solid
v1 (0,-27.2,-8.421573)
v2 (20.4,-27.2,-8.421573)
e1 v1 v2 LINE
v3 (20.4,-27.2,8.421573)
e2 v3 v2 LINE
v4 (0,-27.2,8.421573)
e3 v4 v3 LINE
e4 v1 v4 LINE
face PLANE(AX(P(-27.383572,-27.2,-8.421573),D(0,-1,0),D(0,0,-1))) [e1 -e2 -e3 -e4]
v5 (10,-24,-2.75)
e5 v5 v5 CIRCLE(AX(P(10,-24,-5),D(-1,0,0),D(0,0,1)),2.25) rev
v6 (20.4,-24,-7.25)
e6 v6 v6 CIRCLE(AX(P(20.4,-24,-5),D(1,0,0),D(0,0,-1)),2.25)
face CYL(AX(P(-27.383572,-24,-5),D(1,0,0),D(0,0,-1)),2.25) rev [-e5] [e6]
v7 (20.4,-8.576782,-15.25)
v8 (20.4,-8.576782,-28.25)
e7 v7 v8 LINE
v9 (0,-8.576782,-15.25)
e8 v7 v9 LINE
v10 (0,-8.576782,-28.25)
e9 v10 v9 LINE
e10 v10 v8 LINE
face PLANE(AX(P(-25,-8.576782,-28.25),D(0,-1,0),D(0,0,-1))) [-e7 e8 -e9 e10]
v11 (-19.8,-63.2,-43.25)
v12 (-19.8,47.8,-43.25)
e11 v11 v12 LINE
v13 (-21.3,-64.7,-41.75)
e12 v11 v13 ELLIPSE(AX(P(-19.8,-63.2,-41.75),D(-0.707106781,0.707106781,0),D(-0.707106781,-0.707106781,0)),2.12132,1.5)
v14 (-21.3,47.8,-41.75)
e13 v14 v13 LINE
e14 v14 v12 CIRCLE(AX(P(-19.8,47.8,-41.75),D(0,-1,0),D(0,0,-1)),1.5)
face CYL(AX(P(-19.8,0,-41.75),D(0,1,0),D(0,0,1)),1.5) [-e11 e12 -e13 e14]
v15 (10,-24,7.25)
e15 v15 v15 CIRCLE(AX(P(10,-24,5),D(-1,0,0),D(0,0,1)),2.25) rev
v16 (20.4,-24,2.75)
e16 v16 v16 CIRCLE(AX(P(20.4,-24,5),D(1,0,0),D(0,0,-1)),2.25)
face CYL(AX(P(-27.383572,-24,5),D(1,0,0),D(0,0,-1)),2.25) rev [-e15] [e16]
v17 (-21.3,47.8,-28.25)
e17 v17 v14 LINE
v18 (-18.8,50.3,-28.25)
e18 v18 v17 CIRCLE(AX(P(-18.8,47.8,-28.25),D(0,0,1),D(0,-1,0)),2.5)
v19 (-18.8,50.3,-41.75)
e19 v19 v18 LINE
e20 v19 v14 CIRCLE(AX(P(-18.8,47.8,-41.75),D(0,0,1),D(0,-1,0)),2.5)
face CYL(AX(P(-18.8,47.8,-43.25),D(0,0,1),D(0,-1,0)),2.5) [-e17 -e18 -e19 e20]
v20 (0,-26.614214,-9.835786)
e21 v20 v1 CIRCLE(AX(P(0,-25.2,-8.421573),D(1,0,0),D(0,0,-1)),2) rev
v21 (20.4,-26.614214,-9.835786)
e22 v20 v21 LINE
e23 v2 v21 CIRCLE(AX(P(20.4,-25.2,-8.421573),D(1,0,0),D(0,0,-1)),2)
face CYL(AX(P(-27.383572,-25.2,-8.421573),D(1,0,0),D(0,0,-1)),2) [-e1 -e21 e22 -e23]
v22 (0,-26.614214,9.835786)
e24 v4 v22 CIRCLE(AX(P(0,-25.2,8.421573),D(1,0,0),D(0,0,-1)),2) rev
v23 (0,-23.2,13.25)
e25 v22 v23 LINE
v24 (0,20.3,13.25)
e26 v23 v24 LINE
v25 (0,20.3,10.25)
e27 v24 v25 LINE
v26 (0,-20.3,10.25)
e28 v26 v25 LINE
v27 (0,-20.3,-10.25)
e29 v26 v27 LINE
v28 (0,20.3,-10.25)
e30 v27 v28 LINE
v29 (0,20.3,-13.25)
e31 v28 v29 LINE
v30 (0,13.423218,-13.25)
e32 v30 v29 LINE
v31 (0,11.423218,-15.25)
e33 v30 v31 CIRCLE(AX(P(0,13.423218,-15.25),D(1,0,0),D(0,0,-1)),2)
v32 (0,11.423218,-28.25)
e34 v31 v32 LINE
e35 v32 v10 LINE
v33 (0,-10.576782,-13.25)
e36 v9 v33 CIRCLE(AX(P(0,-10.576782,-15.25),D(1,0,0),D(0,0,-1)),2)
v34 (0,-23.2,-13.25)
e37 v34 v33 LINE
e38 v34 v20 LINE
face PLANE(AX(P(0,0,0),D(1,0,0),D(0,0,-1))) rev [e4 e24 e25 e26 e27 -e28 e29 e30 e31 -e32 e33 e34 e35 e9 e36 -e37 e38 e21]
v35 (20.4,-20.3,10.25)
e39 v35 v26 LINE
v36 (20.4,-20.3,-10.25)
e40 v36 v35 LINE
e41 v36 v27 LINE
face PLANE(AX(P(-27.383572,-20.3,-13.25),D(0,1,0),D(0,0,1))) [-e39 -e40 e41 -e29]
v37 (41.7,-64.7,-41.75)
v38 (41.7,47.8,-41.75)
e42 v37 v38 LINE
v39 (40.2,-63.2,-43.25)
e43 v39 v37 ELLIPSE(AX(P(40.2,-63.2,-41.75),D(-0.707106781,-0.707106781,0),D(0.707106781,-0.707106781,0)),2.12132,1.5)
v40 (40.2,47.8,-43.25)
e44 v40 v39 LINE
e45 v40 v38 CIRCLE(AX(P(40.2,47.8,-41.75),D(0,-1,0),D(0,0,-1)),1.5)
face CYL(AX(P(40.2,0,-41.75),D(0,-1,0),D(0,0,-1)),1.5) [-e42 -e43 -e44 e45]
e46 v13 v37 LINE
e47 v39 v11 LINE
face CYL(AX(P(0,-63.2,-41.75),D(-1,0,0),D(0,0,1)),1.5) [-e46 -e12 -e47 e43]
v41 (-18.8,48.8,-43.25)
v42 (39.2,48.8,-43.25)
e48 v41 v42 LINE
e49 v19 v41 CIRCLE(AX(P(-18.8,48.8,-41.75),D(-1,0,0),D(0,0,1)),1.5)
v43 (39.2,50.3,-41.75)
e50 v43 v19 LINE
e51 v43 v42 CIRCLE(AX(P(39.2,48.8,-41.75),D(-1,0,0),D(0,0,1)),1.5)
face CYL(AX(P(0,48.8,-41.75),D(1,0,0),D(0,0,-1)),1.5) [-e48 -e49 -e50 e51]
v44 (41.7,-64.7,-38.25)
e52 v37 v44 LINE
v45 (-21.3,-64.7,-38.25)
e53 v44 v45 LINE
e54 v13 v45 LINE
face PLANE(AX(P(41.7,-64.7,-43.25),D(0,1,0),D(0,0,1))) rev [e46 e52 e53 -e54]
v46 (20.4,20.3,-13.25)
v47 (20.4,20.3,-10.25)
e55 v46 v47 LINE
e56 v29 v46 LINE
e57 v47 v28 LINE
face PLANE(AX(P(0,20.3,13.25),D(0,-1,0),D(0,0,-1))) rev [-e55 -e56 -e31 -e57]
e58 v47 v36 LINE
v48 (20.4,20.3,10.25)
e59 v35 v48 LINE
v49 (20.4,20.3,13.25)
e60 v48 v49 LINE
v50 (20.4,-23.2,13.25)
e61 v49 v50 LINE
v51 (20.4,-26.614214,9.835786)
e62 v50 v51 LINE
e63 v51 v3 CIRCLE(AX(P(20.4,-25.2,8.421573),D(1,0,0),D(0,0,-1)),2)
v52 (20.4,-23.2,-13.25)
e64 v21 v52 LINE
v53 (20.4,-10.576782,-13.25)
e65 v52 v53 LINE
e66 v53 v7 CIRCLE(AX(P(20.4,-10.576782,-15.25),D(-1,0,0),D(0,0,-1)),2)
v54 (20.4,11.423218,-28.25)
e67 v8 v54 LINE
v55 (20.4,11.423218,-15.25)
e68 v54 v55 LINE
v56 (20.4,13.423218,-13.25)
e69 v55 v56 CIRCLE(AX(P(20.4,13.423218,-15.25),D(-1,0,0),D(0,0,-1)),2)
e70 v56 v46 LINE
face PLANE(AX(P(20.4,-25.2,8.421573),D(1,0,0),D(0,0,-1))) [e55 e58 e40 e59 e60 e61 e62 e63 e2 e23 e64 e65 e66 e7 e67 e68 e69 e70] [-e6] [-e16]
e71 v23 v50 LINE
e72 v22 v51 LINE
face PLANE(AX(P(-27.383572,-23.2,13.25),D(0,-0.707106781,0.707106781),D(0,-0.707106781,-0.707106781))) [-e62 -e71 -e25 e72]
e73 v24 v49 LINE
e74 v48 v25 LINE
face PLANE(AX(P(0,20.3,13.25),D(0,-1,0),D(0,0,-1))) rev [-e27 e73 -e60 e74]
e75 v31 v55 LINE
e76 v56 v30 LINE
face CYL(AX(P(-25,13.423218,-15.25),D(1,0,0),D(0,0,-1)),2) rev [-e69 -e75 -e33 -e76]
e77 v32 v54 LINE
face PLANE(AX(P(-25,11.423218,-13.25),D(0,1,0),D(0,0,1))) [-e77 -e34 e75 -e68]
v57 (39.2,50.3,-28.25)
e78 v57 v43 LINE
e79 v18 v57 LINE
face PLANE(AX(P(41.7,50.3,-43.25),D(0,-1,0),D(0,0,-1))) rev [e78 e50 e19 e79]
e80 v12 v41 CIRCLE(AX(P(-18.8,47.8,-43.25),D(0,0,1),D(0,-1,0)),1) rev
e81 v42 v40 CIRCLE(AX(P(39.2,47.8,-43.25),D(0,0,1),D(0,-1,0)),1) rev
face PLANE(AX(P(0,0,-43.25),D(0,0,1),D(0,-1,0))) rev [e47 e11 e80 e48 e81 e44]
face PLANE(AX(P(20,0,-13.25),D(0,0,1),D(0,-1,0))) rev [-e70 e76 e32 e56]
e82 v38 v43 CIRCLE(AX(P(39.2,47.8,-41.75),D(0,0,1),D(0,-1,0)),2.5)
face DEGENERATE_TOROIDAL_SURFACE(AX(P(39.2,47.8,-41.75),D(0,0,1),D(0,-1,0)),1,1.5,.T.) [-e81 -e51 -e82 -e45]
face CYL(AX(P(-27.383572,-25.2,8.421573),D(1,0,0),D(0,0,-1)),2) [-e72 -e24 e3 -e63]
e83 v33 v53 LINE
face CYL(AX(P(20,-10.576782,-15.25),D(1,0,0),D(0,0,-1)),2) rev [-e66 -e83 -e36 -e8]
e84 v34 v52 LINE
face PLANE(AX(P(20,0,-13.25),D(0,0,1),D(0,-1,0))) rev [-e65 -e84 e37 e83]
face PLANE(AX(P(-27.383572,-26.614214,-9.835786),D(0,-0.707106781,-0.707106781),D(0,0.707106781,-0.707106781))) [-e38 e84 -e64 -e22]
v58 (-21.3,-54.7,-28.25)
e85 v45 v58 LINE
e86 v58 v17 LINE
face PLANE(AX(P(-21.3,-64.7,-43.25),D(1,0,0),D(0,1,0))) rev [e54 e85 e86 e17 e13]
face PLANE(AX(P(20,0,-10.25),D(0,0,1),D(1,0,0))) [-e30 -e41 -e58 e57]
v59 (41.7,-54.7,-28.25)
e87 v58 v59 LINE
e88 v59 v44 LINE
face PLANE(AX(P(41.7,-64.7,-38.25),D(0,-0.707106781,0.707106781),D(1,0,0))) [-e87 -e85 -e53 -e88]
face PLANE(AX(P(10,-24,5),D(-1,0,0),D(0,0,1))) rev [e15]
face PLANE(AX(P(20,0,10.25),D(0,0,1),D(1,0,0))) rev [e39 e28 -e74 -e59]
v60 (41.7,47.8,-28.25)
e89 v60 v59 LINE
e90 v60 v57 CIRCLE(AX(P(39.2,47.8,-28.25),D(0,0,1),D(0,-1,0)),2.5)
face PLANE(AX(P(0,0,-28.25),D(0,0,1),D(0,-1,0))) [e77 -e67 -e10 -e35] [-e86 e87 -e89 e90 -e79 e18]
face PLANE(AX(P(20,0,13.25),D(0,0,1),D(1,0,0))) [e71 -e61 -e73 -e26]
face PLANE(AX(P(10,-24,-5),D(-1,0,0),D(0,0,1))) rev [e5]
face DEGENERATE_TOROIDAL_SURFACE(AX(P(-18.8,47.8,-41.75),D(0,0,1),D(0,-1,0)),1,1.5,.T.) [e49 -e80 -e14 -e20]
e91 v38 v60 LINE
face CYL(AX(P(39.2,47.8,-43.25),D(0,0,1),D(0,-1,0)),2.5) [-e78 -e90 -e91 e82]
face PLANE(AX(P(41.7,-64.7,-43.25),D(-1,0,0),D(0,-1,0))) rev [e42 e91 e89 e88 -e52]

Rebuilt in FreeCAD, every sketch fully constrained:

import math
import FreeCAD as App
import Part
import Sketcher
from FreeCAD import Vector
Q = App.Units.Quantity


def edges_at(feature, points):
    """Names of the edges that pass closest to the given points."""
    edges = feature.Shape.Edges
    near = lambda p: min(range(len(edges)), key=lambda i: edges[i].distToShape(Part.Vertex(*p))[0])
    return sorted({f"Edge{near(p) + 1}" for p in points})


def add_polygon(sketch, points):
    """Adds a closed chain of lines whose ends are joined by coincident constraints."""
    first, n = sketch.GeometryCount, len(points)
    for a, b in zip(points, points[1:] + points[:1]):
        sketch.addGeometry(Part.LineSegment(App.Vector(*a, 0), App.Vector(*b, 0)), False)
    for i in range(n):
        sketch.addConstraint(Sketcher.Constraint("Coincident", first + i, 2, first + (i + 1) % n, 1))

doc = App.newDocument("Part")
params = doc.addObject("Spreadsheet::Sheet", "Params")
for row, (alias, value) in enumerate([
    ("sketch1_diameter", "4.5 mm"),
    ("sketch1_width", "50 mm"),
    ("sketch1_height", "3 mm"),
    ("sketch1_width2", "40.6 mm"),
    ("sketch1_height2", "26.5 mm"),
    ("pad1_length", "20 mm"),
    ("sketch2_diameter", "4.5 mm"),
    ("pad2_length", "10 mm"),
    ("sketch3_width", "2.5 mm"),
    ("sketch3_height", "26.5 mm"),
    ("chamfer_size", "4 mm"),
    ("chamfer2_size", "4 mm"),
    ("fillet_radius", "2 mm"),
    ("sketch4_width", "20 mm"),
    ("sketch4_height", "15 mm"),
    ("pad3_length", "20 mm"),
    ("fillet2_radius", "2 mm"),
    ("sketch5_radius", "2 mm"),
    ("sketch5_diameter", "4.5 mm"),
    ("sketch5_width", "2.9 mm"),
    ("sketch5_height", "26.5 mm"),
    ("pad4_length", "20 mm"),
    ("sketch6_radius", "2 mm"),
    ("sketch6_width", "2.9 mm"),
    ("sketch6_height", "26.5 mm"),
    ("sketch7_diameter", "4.5 mm"),
    ("pad5_length", "10 mm"),
    ("sketch8_radius", "2 mm"),
    ("sketch8_diameter", "4.5 mm"),
    ("sketch8_width", "20 mm"),
    ("sketch8_height", "3 mm"),
    ("sketch8_height2", "13 mm"),
    ("pad6_length", "0.4 mm"),
    ("sketch9_width", "63 mm"),
    ("sketch9_height", "115 mm"),
    ("pad7_length", "15 mm"),
    ("chamfer3_size", "10 mm"),
    ("fillet3_radius", "2.5 mm"),
    ("fillet4_radius", "1.5 mm"),
], start=1):
    params.set(f"A{row}", alias)
    params.set(f"B{row}", "=" + value)
    params.setAlias(f"B{row}", alias)

body = doc.addObject("PartDesign::Body", "Body")

# Sketch on YZ plane
sketch1 = body.newObject("Sketcher::SketchObject", "Sketch")
sketch1.AttachmentSupport = (doc.getObject("YZ_Plane"), [""])
sketch1.MapMode = "FlatFace"
add_polygon(sketch1, [(-20.3, -10.25), (-20.3, -13.25), (29.7, -13.25), (29.7, 13.25), (-20.3, 13.25), (-20.3, 10.25), (20.3, 10.25), (20.3, -10.25)])  # lines 0-7
sketch1.addGeometry(Part.Circle(Vector(24, 5, 0), Vector(0, 0, 1), 2.25), False)  # 8
sketch1.addGeometry(Part.Circle(Vector(24, -5, 0), Vector(0, 0, 1), 2.25), False)  # 9
sketch1.addConstraint(Sketcher.Constraint("Vertical", 0))
sketch1.addConstraint(Sketcher.Constraint("Horizontal", 1))
sketch1.addConstraint(Sketcher.Constraint("Vertical", 2))
sketch1.addConstraint(Sketcher.Constraint("Horizontal", 3))
sketch1.addConstraint(Sketcher.Constraint("Vertical", 4))
sketch1.addConstraint(Sketcher.Constraint("Horizontal", 5))
sketch1.addConstraint(Sketcher.Constraint("Vertical", 6))
sketch1.addConstraint(Sketcher.Constraint("Horizontal", 7))
sketch1.addConstraint(Sketcher.Constraint("Equal", 8, 9))
sketch1.addConstraint(Sketcher.Constraint("Symmetric", 4, 2, 6, 2, -1, 1))
sketch1.addConstraint(Sketcher.Constraint("Symmetric", 8, 3, 9, 3, -1))
sketch1.addConstraint(Sketcher.Constraint("Symmetric", 0, 2, 3, 2, -1))
sketch1.addConstraint(Sketcher.Constraint("Diameter", 8, Q("4.5 mm")))
sketch1.addConstraint(Sketcher.Constraint("DistanceX", 1, 1, 1, 2, Q("50 mm")))
sketch1.addConstraint(Sketcher.Constraint("DistanceY", 0, 2, 0, 1, Q("3 mm")))
sketch1.addConstraint(Sketcher.Constraint("DistanceX", 5, 1, 5, 2, Q("40.6 mm")))
sketch1.addConstraint(Sketcher.Constraint("DistanceY", 2, 1, 2, 2, Q("26.5 mm")))
sketch1.addConstraint(Sketcher.Constraint("DistanceX", -1, 1, 8, 3, Q("24 mm")))
sketch1.addConstraint(Sketcher.Constraint("DistanceY", -1, 1, 8, 3, Q("5 mm")))
sketch1.setExpression("Constraints[20]", "Params.sketch1_diameter")
sketch1.setExpression("Constraints[21]", "Params.sketch1_width")
sketch1.setExpression("Constraints[22]", "Params.sketch1_height")
sketch1.setExpression("Constraints[23]", "Params.sketch1_width2")
sketch1.setExpression("Constraints[24]", "Params.sketch1_height2")
pad1 = body.newObject("PartDesign::Pad", "Pad")
pad1.Profile = sketch1
pad1.setExpression("Length", "Params.pad1_length")

# Sketch on YZ plane
sketch2 = body.newObject("Sketcher::SketchObject", "Sketch001")
sketch2.AttachmentSupport = (doc.getObject("YZ_Plane"), [""])
sketch2.MapMode = "FlatFace"
sketch2.addGeometry(Part.Circle(Vector(24, -5, 0), Vector(0, 0, 1), 2.25), False)
sketch2.addGeometry(Part.Circle(Vector(24, 5, 0), Vector(0, 0, 1), 2.25), False)
sketch2.addConstraint(Sketcher.Constraint("Equal", 0, 1))
sketch2.addConstraint(Sketcher.Constraint("Symmetric", 0, 3, 1, 3, -1))
sketch2.addConstraint(Sketcher.Constraint("Diameter", 0, Q("4.5 mm")))
sketch2.addConstraint(Sketcher.Constraint("DistanceX", -1, 1, 0, 3, Q("24 mm")))
sketch2.addConstraint(Sketcher.Constraint("DistanceY", 0, 3, -1, 1, Q("5 mm")))
sketch2.setExpression("Constraints[2]", "Params.sketch2_diameter")
pad2 = body.newObject("PartDesign::Pad", "Pad001")
pad2.Profile = sketch2
pad2.setExpression("Length", "Params.pad2_length")

# Sketch on YZ plane
sketch3 = body.newObject("Sketcher::SketchObject", "Sketch002")
sketch3.AttachmentSupport = (doc.getObject("YZ_Plane"), [""])
sketch3.MapMode = "FlatFace"
sketch3.AttachmentOffset = App.Placement(Vector(0, 0, 20), App.Rotation())
add_polygon(sketch3, [(29.7, 13.25), (27.2, 13.25), (27.2, -13.25), (29.7, -13.25)])  # lines 0-3
sketch3.addConstraint(Sketcher.Constraint("Horizontal", 0))
sketch3.addConstraint(Sketcher.Constraint("Vertical", 1))
sketch3.addConstraint(Sketcher.Constraint("Horizontal", 2))
sketch3.addConstraint(Sketcher.Constraint("Vertical", 3))
sketch3.addConstraint(Sketcher.Constraint("DistanceX", 0, 2, 0, 1, Q("2.5 mm")))
sketch3.addConstraint(Sketcher.Constraint("DistanceY", 1, 2, 1, 1, Q("26.5 mm")))
sketch3.addConstraint(Sketcher.Constraint("DistanceX", -1, 1, 0, 2, Q("27.2 mm")))
sketch3.addConstraint(Sketcher.Constraint("DistanceY", -1, 1, 0, 2, Q("13.25 mm")))
sketch3.setExpression("Constraints[8]", "Params.sketch3_width")
sketch3.setExpression("Constraints[9]", "Params.sketch3_height")
pocket1 = body.newObject("PartDesign::Pocket", "Pocket")
pocket1.Profile = sketch3
pocket1.Type = "ThroughAll"
doc.recompute()

chamfer = body.newObject("PartDesign::Chamfer", "Chamfer")
chamfer.Base = (pocket1, edges_at(pocket1, [(10, 27.2, -13.25)]))
chamfer.setExpression("Size", "Params.chamfer_size")
doc.recompute()

chamfer2 = body.newObject("PartDesign::Chamfer", "Chamfer001")
chamfer2.Base = (chamfer, edges_at(chamfer, [(10, 27.2, 13.25)]))
chamfer2.setExpression("Size", "Params.chamfer2_size")
doc.recompute()

fillet = body.newObject("PartDesign::Fillet", "Fillet")
fillet.Base = (chamfer2, edges_at(chamfer2, [(10, 27.2, -9.25), (10, 27.2, 9.25)]))
fillet.setExpression("Radius", "Params.fillet_radius")

# Sketch on YZ plane
sketch4 = body.newObject("Sketcher::SketchObject", "Sketch003")
sketch4.AttachmentSupport = (doc.getObject("YZ_Plane"), [""])
sketch4.MapMode = "FlatFace"
sketch4.AttachmentOffset = App.Placement(Vector(0, 0, 20), App.Rotation())
add_polygon(sketch4, [(11.423218, -13.25), (-8.576782, -13.25), (-8.576782, -28.25), (11.423218, -28.25)])  # lines 0-3
sketch4.addConstraint(Sketcher.Constraint("Horizontal", 0))
sketch4.addConstraint(Sketcher.Constraint("Vertical", 1))
sketch4.addConstraint(Sketcher.Constraint("Horizontal", 2))
sketch4.addConstraint(Sketcher.Constraint("Vertical", 3))
sketch4.addConstraint(Sketcher.Constraint("DistanceX", 0, 2, 0, 1, Q("20 mm")))
sketch4.addConstraint(Sketcher.Constraint("DistanceY", 1, 2, 1, 1, Q("15 mm")))
sketch4.addConstraint(Sketcher.Constraint("DistanceY", 0, 2, -1, 1, Q("13.25 mm")))
sketch4.addConstraint(Sketcher.Constraint("DistanceX", 0, 2, -1, 1, Q("8.576782 mm")))
sketch4.setExpression("Constraints[8]", "Params.sketch4_width")
sketch4.setExpression("Constraints[9]", "Params.sketch4_height")
pad3 = body.newObject("PartDesign::Pad", "Pad002")
pad3.Profile = sketch4
pad3.setExpression("Length", "Params.pad3_length")
pad3.Reversed = True
doc.recompute()

fillet2 = body.newObject("PartDesign::Fillet", "Fillet001")
fillet2.Base = (pad3, edges_at(pad3, [(10, -8.577, -13.25), (10, 11.423, -13.25)]))
fillet2.setExpression("Radius", "Params.fillet2_radius")

# Sketch on YZ plane
sketch5 = body.newObject("Sketcher::SketchObject", "Sketch004")
sketch5.AttachmentSupport = (doc.getObject("YZ_Plane"), [""])
sketch5.MapMode = "FlatFace"
sketch5.AttachmentOffset = App.Placement(Vector(0, 0, 20), App.Rotation())
sketch5.addGeometry(Part.LineSegment(Vector(-23.2, 13.25, 0), Vector(-26.614214, 9.835786, 0)), False)
sketch5.addGeometry(Part.ArcOfCircle(Part.Circle(Vector(-25.2, 8.421573, 0), Vector(0, 0, 1), 2), math.radians(135), math.radians(180)), False)
sketch5.addGeometry(Part.LineSegment(Vector(-27.2, 8.421573, 0), Vector(-27.2, -8.421573, 0)), False)
sketch5.addGeometry(Part.ArcOfCircle(Part.Circle(Vector(-25.2, -8.421573, 0), Vector(0, 0, 1), 2), math.radians(180), math.radians(225)), False)
sketch5.addGeometry(Part.LineSegment(Vector(-26.614214, -9.835786, 0), Vector(-23.2, -13.25, 0)), False)
sketch5.addGeometry(Part.LineSegment(Vector(-23.2, -13.25, 0), Vector(-20.3, -13.25, 0)), False)
sketch5.addGeometry(Part.LineSegment(Vector(-20.3, -13.25, 0), Vector(-20.3, 13.25, 0)), False)
sketch5.addGeometry(Part.LineSegment(Vector(-20.3, 13.25, 0), Vector(-23.2, 13.25, 0)), False)
sketch5.addGeometry(Part.Circle(Vector(-24, 5, 0), Vector(0, 0, 1), 2.25), False)
sketch5.addGeometry(Part.Circle(Vector(-24, -5, 0), Vector(0, 0, 1), 2.25), False)
sketch5.addConstraint(Sketcher.Constraint("Tangent", 0, 2, 1, 1))
sketch5.addConstraint(Sketcher.Constraint("Tangent", 1, 2, 2, 1))
sketch5.addConstraint(Sketcher.Constraint("Tangent", 2, 2, 3, 1))
sketch5.addConstraint(Sketcher.Constraint("Tangent", 3, 2, 4, 1))
sketch5.addConstraint(Sketcher.Constraint("Coincident", 4, 2, 5, 1))
sketch5.addConstraint(Sketcher.Constraint("Coincident", 5, 2, 6, 1))
sketch5.addConstraint(Sketcher.Constraint("Coincident", 6, 2, 7, 1))
sketch5.addConstraint(Sketcher.Constraint("Coincident", 7, 2, 0, 1))
sketch5.addConstraint(Sketcher.Constraint("Vertical", 2))
sketch5.addConstraint(Sketcher.Constraint("Horizontal", 5))
sketch5.addConstraint(Sketcher.Constraint("Vertical", 6))
sketch5.addConstraint(Sketcher.Constraint("Horizontal", 7))
sketch5.addConstraint(Sketcher.Constraint("Equal", 1, 3))
sketch5.addConstraint(Sketcher.Constraint("Equal", 8, 9))
sketch5.addConstraint(Sketcher.Constraint("Symmetric", 8, 3, 9, 3, -1))
sketch5.addConstraint(Sketcher.Constraint("Symmetric", 0, 2, 3, 2, -1))
sketch5.addConstraint(Sketcher.Constraint("Perpendicular", 0, 4))
sketch5.addConstraint(Sketcher.Constraint("Vertical", 4, 2, 7, 2))
sketch5.addConstraint(Sketcher.Constraint("Radius", 1, Q("2 mm")))
sketch5.addConstraint(Sketcher.Constraint("Diameter", 8, Q("4.5 mm")))
sketch5.addConstraint(Sketcher.Constraint("DistanceX", 5, 1, 5, 2, Q("2.9 mm")))
sketch5.addConstraint(Sketcher.Constraint("DistanceY", 6, 1, 6, 2, Q("26.5 mm")))
sketch5.addConstraint(Sketcher.Constraint("DistanceX", 8, 3, -1, 1, Q("24 mm")))
sketch5.addConstraint(Sketcher.Constraint("DistanceY", -1, 1, 8, 3, Q("5 mm")))
sketch5.addConstraint(Sketcher.Constraint("DistanceX", 3, 3, 4, 2, Q("2 mm")))
sketch5.addConstraint(Sketcher.Constraint("DistanceX", 1, 3, -1, 1, Q("25.2 mm")))
sketch5.setExpression("Constraints[18]", "Params.sketch5_radius")
sketch5.setExpression("Constraints[19]", "Params.sketch5_diameter")
sketch5.setExpression("Constraints[20]", "Params.sketch5_width")
sketch5.setExpression("Constraints[21]", "Params.sketch5_height")
pad4 = body.newObject("PartDesign::Pad", "Pad003")
pad4.Profile = sketch5
pad4.setExpression("Length", "Params.pad4_length")
pad4.Reversed = True

# Sketch on YZ plane
sketch6 = body.newObject("Sketcher::SketchObject", "Sketch005")
sketch6.AttachmentSupport = (doc.getObject("YZ_Plane"), [""])
sketch6.MapMode = "FlatFace"
sketch6.AttachmentOffset = App.Placement(Vector(0, 0, 20), App.Rotation())
sketch6.addGeometry(Part.LineSegment(Vector(23.2, -13.25, 0), Vector(26.614214, -9.835786, 0)), False)
sketch6.addGeometry(Part.ArcOfCircle(Part.Circle(Vector(25.2, -8.421573, 0), Vector(0, 0, 1), 2), math.radians(-45), math.radians(0)), False)
sketch6.addGeometry(Part.LineSegment(Vector(27.2, -8.421573, 0), Vector(27.2, 8.421573, 0)), False)
sketch6.addGeometry(Part.ArcOfCircle(Part.Circle(Vector(25.2, 8.421573, 0), Vector(0, 0, 1), 2), math.radians(0), math.radians(45)), False)
sketch6.addGeometry(Part.LineSegment(Vector(26.614214, 9.835786, 0), Vector(23.2, 13.25, 0)), False)
sketch6.addGeometry(Part.LineSegment(Vector(23.2, 13.25, 0), Vector(20.3, 13.25, 0)), False)
sketch6.addGeometry(Part.LineSegment(Vector(20.3, 13.25, 0), Vector(20.3, -13.25, 0)), False)
sketch6.addGeometry(Part.LineSegment(Vector(20.3, -13.25, 0), Vector(23.2, -13.25, 0)), False)
sketch6.addConstraint(Sketcher.Constraint("Tangent", 0, 2, 1, 1))
sketch6.addConstraint(Sketcher.Constraint("Tangent", 1, 2, 2, 1))
sketch6.addConstraint(Sketcher.Constraint("Tangent", 2, 2, 3, 1))
sketch6.addConstraint(Sketcher.Constraint("Tangent", 3, 2, 4, 1))
sketch6.addConstraint(Sketcher.Constraint("Coincident", 4, 2, 5, 1))
sketch6.addConstraint(Sketcher.Constraint("Coincident", 5, 2, 6, 1))
sketch6.addConstraint(Sketcher.Constraint("Coincident", 6, 2, 7, 1))
sketch6.addConstraint(Sketcher.Constraint("Coincident", 7, 2, 0, 1))
sketch6.addConstraint(Sketcher.Constraint("Vertical", 2))
sketch6.addConstraint(Sketcher.Constraint("Horizontal", 5))
sketch6.addConstraint(Sketcher.Constraint("Vertical", 6))
sketch6.addConstraint(Sketcher.Constraint("Horizontal", 7))
sketch6.addConstraint(Sketcher.Constraint("Equal", 1, 3))
sketch6.addConstraint(Sketcher.Constraint("Symmetric", 0, 2, 3, 2, -1))
sketch6.addConstraint(Sketcher.Constraint("Perpendicular", 0, 4))
sketch6.addConstraint(Sketcher.Constraint("Vertical", 4, 2, 7, 2))
sketch6.addConstraint(Sketcher.Constraint("Radius", 1, Q("2 mm")))
sketch6.addConstraint(Sketcher.Constraint("DistanceX", 5, 2, 5, 1, Q("2.9 mm")))
sketch6.addConstraint(Sketcher.Constraint("DistanceY", 6, 2, 6, 1, Q("26.5 mm")))
sketch6.addConstraint(Sketcher.Constraint("DistanceX", 4, 2, 3, 3, Q("2 mm")))
sketch6.addConstraint(Sketcher.Constraint("DistanceX", -1, 1, 1, 3, Q("25.2 mm")))
sketch6.setExpression("Constraints[16]", "Params.sketch6_radius")
sketch6.setExpression("Constraints[17]", "Params.sketch6_width")
sketch6.setExpression("Constraints[18]", "Params.sketch6_height")
pocket2 = body.newObject("PartDesign::Pocket", "Pocket001")
pocket2.Profile = sketch6
pocket2.Type = "ThroughAll"

# Sketch on YZ plane
sketch7 = body.newObject("Sketcher::SketchObject", "Sketch006")
sketch7.AttachmentSupport = (doc.getObject("YZ_Plane"), [""])
sketch7.MapMode = "FlatFace"
sketch7.AttachmentOffset = App.Placement(Vector(0, 0, 10), App.Rotation())
sketch7.addGeometry(Part.Circle(Vector(-24, -5, 0), Vector(0, 0, 1), 2.25), False)
sketch7.addGeometry(Part.Circle(Vector(-24, 5, 0), Vector(0, 0, 1), 2.25), False)
sketch7.addConstraint(Sketcher.Constraint("Equal", 0, 1))
sketch7.addConstraint(Sketcher.Constraint("Symmetric", 0, 3, 1, 3, -1))
sketch7.addConstraint(Sketcher.Constraint("Diameter", 0, Q("4.5 mm")))
sketch7.addConstraint(Sketcher.Constraint("DistanceX", 0, 3, -1, 1, Q("24 mm")))
sketch7.addConstraint(Sketcher.Constraint("DistanceY", 0, 3, -1, 1, Q("5 mm")))
sketch7.setExpression("Constraints[2]", "Params.sketch7_diameter")
pad5 = body.newObject("PartDesign::Pad", "Pad004")
pad5.Profile = sketch7
pad5.setExpression("Length", "Params.pad5_length")
pad5.Reversed = True

# Sketch on YZ plane
sketch8 = body.newObject("Sketcher::SketchObject", "Sketch007")
sketch8.AttachmentSupport = (doc.getObject("YZ_Plane"), [""])
sketch8.MapMode = "FlatFace"
sketch8.AttachmentOffset = App.Placement(Vector(0, 0, 20.4), App.Rotation())
sketch8.addGeometry(Part.LineSegment(Vector(20.3, 10.25, 0), Vector(20.3, 13.25, 0)), False)
sketch8.addGeometry(Part.LineSegment(Vector(20.3, 13.25, 0), Vector(-23.2, 13.25, 0)), False)
sketch8.addGeometry(Part.LineSegment(Vector(-23.2, 13.25, 0), Vector(-26.614214, 9.835786, 0)), False)
sketch8.addGeometry(Part.ArcOfCircle(Part.Circle(Vector(-25.2, 8.421573, 0), Vector(0, 0, 1), 2), math.radians(135), math.radians(180)), False)
sketch8.addGeometry(Part.LineSegment(Vector(-27.2, 8.421573, 0), Vector(-27.2, -8.421573, 0)), False)
sketch8.addGeometry(Part.ArcOfCircle(Part.Circle(Vector(-25.2, -8.421573, 0), Vector(0, 0, 1), 2), math.radians(180), math.radians(225)), False)
sketch8.addGeometry(Part.LineSegment(Vector(-26.614214, -9.835786, 0), Vector(-23.2, -13.25, 0)), False)
sketch8.addGeometry(Part.LineSegment(Vector(-23.2, -13.25, 0), Vector(-10.576782, -13.25, 0)), False)
sketch8.addGeometry(Part.ArcOfCircle(Part.Circle(Vector(-10.576782, -15.25, 0), Vector(0, 0, 1), 2), math.radians(0), math.radians(90)), False)
sketch8.addGeometry(Part.LineSegment(Vector(-8.576782, -15.25, 0), Vector(-8.576782, -28.25, 0)), False)
sketch8.addGeometry(Part.LineSegment(Vector(-8.576782, -28.25, 0), Vector(11.423218, -28.25, 0)), False)
sketch8.addGeometry(Part.LineSegment(Vector(11.423218, -28.25, 0), Vector(11.423218, -15.25, 0)), False)
sketch8.addGeometry(Part.ArcOfCircle(Part.Circle(Vector(13.423218, -15.25, 0), Vector(0, 0, 1), 2), math.radians(90), math.radians(180)), False)
sketch8.addGeometry(Part.LineSegment(Vector(13.423218, -13.25, 0), Vector(20.3, -13.25, 0)), False)
sketch8.addGeometry(Part.LineSegment(Vector(20.3, -13.25, 0), Vector(20.3, -10.25, 0)), False)
sketch8.addGeometry(Part.LineSegment(Vector(20.3, -10.25, 0), Vector(-20.3, -10.25, 0)), False)
sketch8.addGeometry(Part.LineSegment(Vector(-20.3, -10.25, 0), Vector(-20.3, 10.25, 0)), False)
sketch8.addGeometry(Part.LineSegment(Vector(-20.3, 10.25, 0), Vector(20.3, 10.25, 0)), False)
sketch8.addGeometry(Part.Circle(Vector(-24, 5, 0), Vector(0, 0, 1), 2.25), False)
sketch8.addGeometry(Part.Circle(Vector(-24, -5, 0), Vector(0, 0, 1), 2.25), False)
sketch8.addConstraint(Sketcher.Constraint("Coincident", 0, 2, 1, 1))
sketch8.addConstraint(Sketcher.Constraint("Coincident", 1, 2, 2, 1))
sketch8.addConstraint(Sketcher.Constraint("Tangent", 2, 2, 3, 1))
sketch8.addConstraint(Sketcher.Constraint("Tangent", 3, 2, 4, 1))
sketch8.addConstraint(Sketcher.Constraint("Tangent", 4, 2, 5, 1))
sketch8.addConstraint(Sketcher.Constraint("Tangent", 5, 2, 6, 1))
sketch8.addConstraint(Sketcher.Constraint("Coincident", 6, 2, 7, 1))
sketch8.addConstraint(Sketcher.Constraint("Tangent", 7, 2, 8, 2))
sketch8.addConstraint(Sketcher.Constraint("Tangent", 8, 1, 9, 1))
sketch8.addConstraint(Sketcher.Constraint("Coincident", 9, 2, 10, 1))
sketch8.addConstraint(Sketcher.Constraint("Coincident", 10, 2, 11, 1))
sketch8.addConstraint(Sketcher.Constraint("Tangent", 11, 2, 12, 2))
sketch8.addConstraint(Sketcher.Constraint("Tangent", 12, 1, 13, 1))
sketch8.addConstraint(Sketcher.Constraint("Coincident", 13, 2, 14, 1))
sketch8.addConstraint(Sketcher.Constraint("Coincident", 14, 2, 15, 1))
sketch8.addConstraint(Sketcher.Constraint("Coincident", 15, 2, 16, 1))
sketch8.addConstraint(Sketcher.Constraint("Coincident", 16, 2, 17, 1))
sketch8.addConstraint(Sketcher.Constraint("Coincident", 17, 2, 0, 1))
sketch8.addConstraint(Sketcher.Constraint("Vertical", 0))
sketch8.addConstraint(Sketcher.Constraint("Horizontal", 1))
sketch8.addConstraint(Sketcher.Constraint("Vertical", 4))
sketch8.addConstraint(Sketcher.Constraint("Horizontal", 7))
sketch8.addConstraint(Sketcher.Constraint("Vertical", 9))
sketch8.addConstraint(Sketcher.Constraint("Horizontal", 10))
sketch8.addConstraint(Sketcher.Constraint("Vertical", 11))
sketch8.addConstraint(Sketcher.Constraint("Horizontal", 13))
sketch8.addConstraint(Sketcher.Constraint("Vertical", 14))
sketch8.addConstraint(Sketcher.Constraint("Horizontal", 15))
sketch8.addConstraint(Sketcher.Constraint("Vertical", 16))
sketch8.addConstraint(Sketcher.Constraint("Horizontal", 17))
sketch8.addConstraint(Sketcher.Constraint("Equal", 3, 5))
sketch8.addConstraint(Sketcher.Constraint("Equal", 5, 8))
sketch8.addConstraint(Sketcher.Constraint("Equal", 8, 12))
sketch8.addConstraint(Sketcher.Constraint("Equal", 18, 19))
sketch8.addConstraint(Sketcher.Constraint("Symmetric", 14, 2, 16, 2, -1, 1))
sketch8.addConstraint(Sketcher.Constraint("Symmetric", 18, 3, 19, 3, -1))
sketch8.addConstraint(Sketcher.Constraint("Symmetric", 2, 2, 5, 2, -1))
sketch8.addConstraint(Sketcher.Constraint("Symmetric", 0, 2, 13, 2, -1))
sketch8.addConstraint(Sketcher.Constraint("Perpendicular", 2, 6))
sketch8.addConstraint(Sketcher.Constraint("Horizontal", 8, 3, 12, 3))
sketch8.addConstraint(Sketcher.Constraint("Radius", 3, Q("2 mm")))
sketch8.addConstraint(Sketcher.Constraint("Diameter", 18, Q("4.5 mm")))
sketch8.addConstraint(Sketcher.Constraint("DistanceX", 10, 1, 10, 2, Q("20 mm")))
sketch8.addConstraint(Sketcher.Constraint("DistanceY", 0, 1, 0, 2, Q("3 mm")))
sketch8.addConstraint(Sketcher.Constraint("DistanceY", 9, 2, 9, 1, Q("13 mm")))
sketch8.addConstraint(Sketcher.Constraint("DistanceX", 1, 2, 1, 1, Q("43.5 mm")))
sketch8.addConstraint(Sketcher.Constraint("DistanceX", 15, 2, 15, 1, Q("40.6 mm")))
sketch8.addConstraint(Sketcher.Constraint("DistanceY", 16, 1, 16, 2, Q("20.5 mm")))
sketch8.addConstraint(Sketcher.Constraint("DistanceX", 18, 3, -1, 1, Q("24 mm")))
sketch8.addConstraint(Sketcher.Constraint("DistanceY", -1, 1, 18, 3, Q("5 mm")))
sketch8.addConstraint(Sketcher.Constraint("DistanceX", 3, 3, 1, 2, Q("2 mm")))
sketch8.addConstraint(Sketcher.Constraint("DistanceX", 7, 1, 7, 2, Q("12.623218 mm")))
sketch8.setExpression("Constraints[40]", "Params.sketch8_radius")
sketch8.setExpression("Constraints[41]", "Params.sketch8_diameter")
sketch8.setExpression("Constraints[42]", "Params.sketch8_width")
sketch8.setExpression("Constraints[43]", "Params.sketch8_height")
sketch8.setExpression("Constraints[44]", "Params.sketch8_height2")
pad6 = body.newObject("PartDesign::Pad", "Pad005")
pad6.Profile = sketch8
pad6.setExpression("Length", "Params.pad6_length")
pad6.Reversed = True

# Sketch on XY plane
sketch9 = body.newObject("Sketcher::SketchObject", "Sketch008")
sketch9.AttachmentSupport = (doc.getObject("XY_Plane"), [""])
sketch9.MapMode = "FlatFace"
sketch9.AttachmentOffset = App.Placement(Vector(0, 0, -28.25), App.Rotation())
add_polygon(sketch9, [(41.7, 50.3), (41.7, -64.7), (-21.3, -64.7), (-21.3, 50.3)])  # lines 0-3
sketch9.addConstraint(Sketcher.Constraint("Vertical", 0))
sketch9.addConstraint(Sketcher.Constraint("Horizontal", 1))
sketch9.addConstraint(Sketcher.Constraint("Vertical", 2))
sketch9.addConstraint(Sketcher.Constraint("Horizontal", 3))
sketch9.addConstraint(Sketcher.Constraint("DistanceX", 1, 2, 1, 1, Q("63 mm")))
sketch9.addConstraint(Sketcher.Constraint("DistanceY", 0, 2, 0, 1, Q("115 mm")))
sketch9.addConstraint(Sketcher.Constraint("DistanceX", -1, 1, 0, 2, Q("41.7 mm")))
sketch9.addConstraint(Sketcher.Constraint("DistanceY", 0, 2, -1, 1, Q("64.7 mm")))
sketch9.setExpression("Constraints[8]", "Params.sketch9_width")
sketch9.setExpression("Constraints[9]", "Params.sketch9_height")
pad7 = body.newObject("PartDesign::Pad", "Pad006")
pad7.Profile = sketch9
pad7.setExpression("Length", "Params.pad7_length")
pad7.Reversed = True
doc.recompute()

chamfer3 = body.newObject("PartDesign::Chamfer", "Chamfer002")
chamfer3.Base = (pad7, edges_at(pad7, [(10.2, -64.7, -28.25)]))
chamfer3.setExpression("Size", "Params.chamfer3_size")
doc.recompute()

fillet3 = body.newObject("PartDesign::Fillet", "Fillet002")
fillet3.Base = (chamfer3, edges_at(chamfer3, [(41.7, 50.3, -35.75), (-21.3, 50.3, -35.75)]))
fillet3.setExpression("Radius", "Params.fillet3_radius")
doc.recompute()

fillet4 = body.newObject("PartDesign::Fillet", "Fillet003")
fillet4.Base = (fillet3, edges_at(fillet3, [
    (10.2, -64.7, -43.25),
    (-21.3, -8.45, -43.25),
    (10.2, 50.3, -43.25),
    (41.7, -8.45, -43.25),
    (40.968, 49.568, -43.25),
    (-20.568, 49.568, -43.25),
]))
fillet4.setExpression("Radius", "Params.fillet4_radius")

doc.recompute()
